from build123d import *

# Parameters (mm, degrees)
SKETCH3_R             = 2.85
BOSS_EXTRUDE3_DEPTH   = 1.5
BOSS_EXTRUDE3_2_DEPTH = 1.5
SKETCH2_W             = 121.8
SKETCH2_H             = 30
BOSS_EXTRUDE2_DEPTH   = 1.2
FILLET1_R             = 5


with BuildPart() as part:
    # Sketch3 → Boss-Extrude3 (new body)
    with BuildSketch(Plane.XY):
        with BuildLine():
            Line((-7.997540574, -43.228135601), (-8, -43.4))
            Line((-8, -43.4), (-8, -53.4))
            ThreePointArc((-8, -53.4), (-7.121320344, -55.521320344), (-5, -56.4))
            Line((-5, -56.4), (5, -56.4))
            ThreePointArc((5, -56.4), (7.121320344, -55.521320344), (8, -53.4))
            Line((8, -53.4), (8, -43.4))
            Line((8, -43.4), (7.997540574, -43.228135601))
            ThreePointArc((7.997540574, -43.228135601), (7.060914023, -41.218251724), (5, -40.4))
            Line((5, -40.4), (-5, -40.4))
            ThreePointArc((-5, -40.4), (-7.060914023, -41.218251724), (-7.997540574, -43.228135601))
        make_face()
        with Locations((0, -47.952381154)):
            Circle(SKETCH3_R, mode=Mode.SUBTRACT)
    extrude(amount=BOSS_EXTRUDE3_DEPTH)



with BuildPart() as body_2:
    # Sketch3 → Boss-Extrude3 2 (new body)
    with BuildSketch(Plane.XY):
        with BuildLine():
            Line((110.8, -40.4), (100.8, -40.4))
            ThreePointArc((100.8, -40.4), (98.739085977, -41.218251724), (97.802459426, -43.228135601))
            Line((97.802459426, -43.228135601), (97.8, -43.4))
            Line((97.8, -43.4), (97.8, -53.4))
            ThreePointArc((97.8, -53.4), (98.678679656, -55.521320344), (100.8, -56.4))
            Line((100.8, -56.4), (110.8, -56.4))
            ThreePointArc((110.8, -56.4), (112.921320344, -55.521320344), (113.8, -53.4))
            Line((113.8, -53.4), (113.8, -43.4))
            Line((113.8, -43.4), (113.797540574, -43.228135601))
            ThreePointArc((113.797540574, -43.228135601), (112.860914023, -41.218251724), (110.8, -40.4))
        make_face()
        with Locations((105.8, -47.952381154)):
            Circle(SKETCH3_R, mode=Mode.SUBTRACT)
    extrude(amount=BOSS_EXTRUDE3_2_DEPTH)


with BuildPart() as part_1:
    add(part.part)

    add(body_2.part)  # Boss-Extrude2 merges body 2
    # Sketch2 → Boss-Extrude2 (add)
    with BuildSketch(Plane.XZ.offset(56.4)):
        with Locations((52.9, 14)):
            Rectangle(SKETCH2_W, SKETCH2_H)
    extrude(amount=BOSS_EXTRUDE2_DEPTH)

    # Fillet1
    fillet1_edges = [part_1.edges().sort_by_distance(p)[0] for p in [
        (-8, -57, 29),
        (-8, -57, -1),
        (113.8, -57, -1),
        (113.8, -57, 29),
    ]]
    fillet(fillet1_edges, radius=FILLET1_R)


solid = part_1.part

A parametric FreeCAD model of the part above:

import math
import FreeCAD as App
import Part
import Sketcher
from FreeCAD import Vector


def edges_at(feature, points):
    """Names of the edges that pass closest to the given points."""
    edges = feature.Shape.Edges
    near = lambda p: min(range(len(edges)), key=lambda i: edges[i].distToShape(Part.Vertex(*p))[0])
    return sorted({f"Edge{near(p) + 1}" for p in points})


def add_polygon(sketch, points):
    """Adds a closed chain of lines whose ends are joined by coincident constraints."""
    first, n = sketch.GeometryCount, len(points)
    for a, b in zip(points, points[1:] + points[:1]):
        sketch.addGeometry(Part.LineSegment(App.Vector(*a, 0), App.Vector(*b, 0)), False)
    for i in range(n):
        sketch.addConstraint(Sketcher.Constraint("Coincident", first + i, 2, first + (i + 1) % n, 1))

doc = App.newDocument("Part")
body = doc.addObject("PartDesign::Body", "Body")

# Sketch on XY plane
sketch1 = doc.addObject("Sketcher::SketchObject", "Sketch")
body.addObject(sketch1)
sketch1.AttachmentSupport = (doc.XY_Plane, [""])
sketch1.MapMode = "FlatFace"
sketch1.addGeometry([
    Part.LineSegment(Vector(-8, -43.23, 0), Vector(-8, -43.4, 0)),  # 0
    Part.LineSegment(Vector(-8, -43.4, 0), Vector(-8, -53.4, 0)),  # 1
    Part.ArcOfCircle(Part.Circle(Vector(-5, -53.4, 0), Vector(0, 0, 1), 3), math.radians(180), math.radians(270)),  # 2
    Part.LineSegment(Vector(-5, -56.4, 0), Vector(5, -56.4, 0)),  # 3
    Part.ArcOfCircle(Part.Circle(Vector(5, -53.4, 0), Vector(0, 0, 1), 3), math.radians(-90), math.radians(0)),  # 4
    Part.LineSegment(Vector(8, -53.4, 0), Vector(8, -43.4, 0)),  # 5
    Part.LineSegment(Vector(8, -43.4, 0), Vector(8, -43.23, 0)),  # 6
    Part.ArcOfCircle(Part.Circle(Vector(5, -43.4, 0), Vector(0, 0, 1), 3), math.radians(3), math.radians(90)),  # 7
    Part.LineSegment(Vector(5, -40.4, 0), Vector(-5, -40.4, 0)),  # 8
    Part.ArcOfCircle(Part.Circle(Vector(-5, -43.4, 0), Vector(0, 0, 1), 3), math.radians(90), math.radians(177)),  # 9
    Part.Circle(Vector(0, -47.95, 0), Vector(0, 0, 1), 2.85),  # 10
], False)
sketch1.addConstraint([
    Sketcher.Constraint("Coincident", 0, 2, 1, 1),
    Sketcher.Constraint("Tangent", 1, 2, 2, 1),
    Sketcher.Constraint("Tangent", 2, 2, 3, 1),
    Sketcher.Constraint("Tangent", 3, 2, 4, 1),
    Sketcher.Constraint("Tangent", 4, 2, 5, 1),
    Sketcher.Constraint("Coincident", 5, 2, 6, 1),
    Sketcher.Constraint("Coincident", 6, 2, 7, 1),
    Sketcher.Constraint("Coincident", 7, 2, 8, 1),
    Sketcher.Constraint("Coincident", 8, 2, 9, 1),
    Sketcher.Constraint("Coincident", 9, 2, 0, 1),
    Sketcher.Constraint("Vertical", 1),
    Sketcher.Constraint("Horizontal", 3),
    Sketcher.Constraint("Vertical", 5),
    Sketcher.Constraint("Horizontal", 8),
    Sketcher.Constraint("Equal", 2, 4),
    Sketcher.Constraint("Equal", 7, 9),
    Sketcher.Constraint("Symmetric", 0, 2, 5, 2, -2),
    Sketcher.Constraint("Symmetric", 6, 2, 9, 2, -2),
    Sketcher.Constraint("PointOnObject", 10, 3, -2),
    Sketcher.Constraint("Vertical", 3, 2, 7, 2),
    Sketcher.Constraint("Vertical", 2, 2, 8, 2),
    Sketcher.Constraint("Equal", 8, 1),
    Sketcher.Constraint("Radius", 2, 3.0),
    Sketcher.Constraint("Diameter", 10, 5.7),
    Sketcher.Constraint("DistanceX", 3, 1, 3, 2, 10.0),
    Sketcher.Constraint("DistanceY", 5, 2, 7, 2, 3.0),
    Sketcher.Constraint("DistanceY", 2, 3, -1, 1, 53.4),
    Sketcher.Constraint("Radius", 7, 3.001232),
    Sketcher.Constraint("Distance", 0, 0.171882),
    Sketcher.Constraint("DistanceY", 10, 3, -1, 1, 47.952381),
    Sketcher.Constraint("DistanceX", -1, 1, 6, 2, 7.997541),
])
pad1 = doc.addObject("PartDesign::Pad", "Pad")
body.addObject(pad1)
pad1.Profile = sketch1
pad1.Length = 1.5
body2 = doc.addObject("PartDesign::Body", "Body001")

# Sketch on XY plane
sketch2 = doc.addObject("Sketcher::SketchObject", "Sketch001")
body2.addObject(sketch2)
sketch2.AttachmentSupport = (doc.getObject("XY_Plane001"), [""])
sketch2.MapMode = "FlatFace"
sketch2.addGeometry([
    Part.LineSegment(Vector(110.8, -40.4, 0), Vector(100.8, -40.4, 0)),  # 0
    Part.ArcOfCircle(Part.Circle(Vector(100.798696, -43.401232, 0), Vector(0, 0, 1), 3.001232), math.radians(89.975098), math.radians(176.69363)),  # 1
    Part.LineSegment(Vector(97.802459, -43.228136, 0), Vector(97.8, -43.4, 0)),  # 2
    Part.LineSegment(Vector(97.8, -43.4, 0), Vector(97.8, -53.4, 0)),  # 3
    Part.ArcOfCircle(Part.Circle(Vector(100.8, -53.4, 0), Vector(0, 0, 1), 3), math.radians(180), math.radians(270)),  # 4
    Part.LineSegment(Vector(100.8, -56.4, 0), Vector(110.8, -56.4, 0)),  # 5
    Part.ArcOfCircle(Part.Circle(Vector(110.8, -53.4, 0), Vector(0, 0, 1), 3), math.radians(-90), math.radians(0)),  # 6
    Part.LineSegment(Vector(113.8, -53.4, 0), Vector(113.8, -43.4, 0)),  # 7
    Part.LineSegment(Vector(113.8, -43.4, 0), Vector(113.797541, -43.228136, 0)),  # 8
    Part.ArcOfCircle(Part.Circle(Vector(110.801304, -43.401232, 0), Vector(0, 0, 1), 3.001232), math.radians(3.30637), math.radians(90.024902)),  # 9
    Part.Circle(Vector(105.8, -47.952381, 0), Vector(0, 0, 1), 2.85),  # 10
], False)
sketch2.addConstraint([
    Sketcher.Constraint("Coincident", 0, 2, 1, 1),
    Sketcher.Constraint("Coincident", 1, 2, 2, 1),
    Sketcher.Constraint("Coincident", 2, 2, 3, 1),
    Sketcher.Constraint("Tangent", 3, 2, 4, 1),
    Sketcher.Constraint("Tangent", 4, 2, 5, 1),
    Sketcher.Constraint("Tangent", 5, 2, 6, 1),
    Sketcher.Constraint("Tangent", 6, 2, 7, 1),
    Sketcher.Constraint("Coincident", 7, 2, 8, 1),
    Sketcher.Constraint("Coincident", 8, 2, 9, 1),
    Sketcher.Constraint("Coincident", 9, 2, 0, 1),
    Sketcher.Constraint("Horizontal", 0),
    Sketcher.Constraint("Vertical", 3),
    Sketcher.Constraint("Horizontal", 5),
    Sketcher.Constraint("Vertical", 7),
    Sketcher.Constraint("Equal", 4, 6),
    Sketcher.Constraint("Equal", 1, 9),
    Sketcher.Constraint("Horizontal", 2, 2, 7, 2),
    Sketcher.Constraint("Horizontal", 1, 2, 8, 2),
    Sketcher.Constraint("Vertical", 4, 3, 0, 2),
    Sketcher.Constraint("Vertical", 5, 2, 9, 2),
    Sketcher.Constraint("Equal", 5, 3),
    Sketcher.Constraint("Equal", 2, 8),
    Sketcher.Constraint("Radius", 4, 3.0),
    Sketcher.Constraint("Diameter", 10, 5.7),
    Sketcher.Constraint("DistanceX", 0, 2, 0, 1, 10.0),
    Sketcher.Constraint("DistanceX", 4, 3, 10, 3, 5.0),
    Sketcher.Constraint("DistanceY", 4, 3, 0, 2, 13.0),
    Sketcher.Constraint("DistanceX", -1, 1, 4, 3, 100.8),
    Sketcher.Constraint("DistanceY", 4, 3, -1, 1, 53.4),
    Sketcher.Constraint("Radius", 1, 3.001232),
    Sketcher.Constraint("Distance", 2, 0.171882),
    Sketcher.Constraint("DistanceY", 10, 3, -1, 1, 47.952381),
    Sketcher.Constraint("DistanceX", -1, 1, 1, 2, 97.802459),
])
pad2 = doc.addObject("PartDesign::Pad", "Pad001")
body2.addObject(pad2)
pad2.Profile = sketch2
pad2.Length = 1.5
body.AllowCompound = True
doc.recompute()

boolean = doc.addObject("PartDesign::Boolean", "Boolean")
body.addObject(boolean)
boolean.Type = "Fuse"
boolean.addObjects([body2])

# Sketch on XZ plane
sketch3 = doc.addObject("Sketcher::SketchObject", "Sketch002")
body.addObject(sketch3)
sketch3.AttachmentSupport = (doc.XZ_Plane, [""])
sketch3.MapMode = "FlatFace"
sketch3.AttachmentOffset = App.Placement(Vector(0, 0, 56.4), App.Rotation())
add_polygon(sketch3, [(-8, 29), (-8, -1), (114, -1), (114, 29)])  # lines 0-3
sketch3.addConstraint([
    Sketcher.Constraint("Vertical", 0),
    Sketcher.Constraint("Horizontal", 1),
    Sketcher.Constraint("Vertical", 2),
    Sketcher.Constraint("Horizontal", 3),
    Sketcher.Constraint("DistanceY", 0, 2, 0, 1, 30.0),
    Sketcher.Constraint("DistanceX", 1, 1, 1, 2, 121.8),
    Sketcher.Constraint("DistanceX", 0, 2, -1, 1, 8.0),
    Sketcher.Constraint("DistanceY", 0, 2, -1, 1, 1.0),
])
pad3 = doc.addObject("PartDesign::Pad", "Pad002")
body.addObject(pad3)
pad3.Profile = sketch3
pad3.Length = 1.2
doc.recompute()

fillet = doc.addObject("PartDesign::Fillet", "Fillet")
body.addObject(fillet)
fillet.Base = (pad3, edges_at(pad3, [
    (-8, -57, 29),
    (-8, -57, -1),
    (113.8, -57, -1),
    (113.8, -57, 29),
]))
fillet.Radius = 5

doc.recompute()
